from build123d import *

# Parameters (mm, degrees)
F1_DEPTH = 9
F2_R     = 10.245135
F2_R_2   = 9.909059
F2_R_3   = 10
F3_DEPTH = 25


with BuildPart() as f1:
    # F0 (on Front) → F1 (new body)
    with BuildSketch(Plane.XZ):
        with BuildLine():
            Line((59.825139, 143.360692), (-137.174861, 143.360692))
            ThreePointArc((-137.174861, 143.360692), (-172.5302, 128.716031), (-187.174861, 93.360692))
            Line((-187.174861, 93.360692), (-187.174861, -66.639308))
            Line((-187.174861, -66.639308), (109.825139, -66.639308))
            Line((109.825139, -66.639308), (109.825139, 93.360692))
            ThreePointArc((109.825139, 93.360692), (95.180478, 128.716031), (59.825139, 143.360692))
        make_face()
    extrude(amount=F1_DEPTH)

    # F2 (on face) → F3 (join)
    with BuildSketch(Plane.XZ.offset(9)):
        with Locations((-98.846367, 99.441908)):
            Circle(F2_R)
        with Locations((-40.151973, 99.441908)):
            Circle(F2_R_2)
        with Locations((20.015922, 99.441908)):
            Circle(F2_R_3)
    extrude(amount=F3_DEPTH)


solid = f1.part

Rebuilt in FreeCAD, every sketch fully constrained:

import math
import FreeCAD as App
import Part
import Sketcher
from FreeCAD import Vector
Q = App.Units.Quantity

doc = App.newDocument("Part")
body = doc.addObject("PartDesign::Body", "Body")

# Sketch on XZ plane
sketch1 = body.newObject("Sketcher::SketchObject", "Sketch")
sketch1.AttachmentSupport = (doc.getObject("XZ_Plane"), [""])
sketch1.MapMode = "FlatFace"
sketch1.addGeometry([
    Part.LineSegment(Vector(59.825139, 143.360692, 0), Vector(-137.174861, 143.360692, 0)),  # 0
    Part.ArcOfCircle(Part.Circle(Vector(-137.174861, 93.360692, 0), Vector(0, 0, 1), 50), math.radians(90), math.radians(180)),  # 1
    Part.LineSegment(Vector(-187.174861, 93.360692, 0), Vector(-187.174861, -66.639308, 0)),  # 2
    Part.LineSegment(Vector(-187.174861, -66.639308, 0), Vector(109.825139, -66.639308, 0)),  # 3
    Part.LineSegment(Vector(109.825139, -66.639308, 0), Vector(109.825139, 93.360692, 0)),  # 4
    Part.ArcOfCircle(Part.Circle(Vector(59.825139, 93.360692, 0), Vector(0, 0, 1), 50), math.radians(0), math.radians(90)),  # 5
], False)
sketch1.addConstraint([
    Sketcher.Constraint("Tangent", 0, 2, 1, 1),
    Sketcher.Constraint("Tangent", 1, 2, 2, 1),
    Sketcher.Constraint("Coincident", 2, 2, 3, 1),
    Sketcher.Constraint("Coincident", 3, 2, 4, 1),
    Sketcher.Constraint("Tangent", 4, 2, 5, 1),
    Sketcher.Constraint("Tangent", 5, 2, 0, 1),
    Sketcher.Constraint("Horizontal", 0),
    Sketcher.Constraint("Vertical", 2),
    Sketcher.Constraint("Horizontal", 3),
    Sketcher.Constraint("Vertical", 4),
    Sketcher.Constraint("Equal", 1, 5),
    Sketcher.Constraint("Radius", 1, Q("50 mm")),
    Sketcher.Constraint("DistanceX", 0, 2, 0, 1, Q("197 mm")),
    Sketcher.Constraint("DistanceY", 2, 2, 2, 1, Q("160 mm")),
    Sketcher.Constraint("DistanceX", 1, 3, -1, 1, Q("137.174861 mm")),
    Sketcher.Constraint("DistanceY", -1, 1, 1, 3, Q("93.360692 mm")),
])
pad1 = body.newObject("PartDesign::Pad", "Pad")
pad1.Profile = sketch1
pad1.Length = 9

# Sketch on XZ plane
sketch2 = body.newObject("Sketcher::SketchObject", "Sketch001")
sketch2.AttachmentSupport = (doc.getObject("XZ_Plane"), [""])
sketch2.MapMode = "FlatFace"
sketch2.AttachmentOffset = App.Placement(Vector(0, 0, 9), App.Rotation())
sketch2.addGeometry([
    Part.Circle(Vector(-98.846367, 99.441908, 0), Vector(0, 0, 1), 10.245135),
    Part.Circle(Vector(-40.151973, 99.441908, 0), Vector(0, 0, 1), 9.909059),
    Part.Circle(Vector(20.015922, 99.441908, 0), Vector(0, 0, 1), 10),
], False)
sketch2.addConstraint([
    Sketcher.Constraint("Horizontal", 0, 3, 1, 3),
    Sketcher.Constraint("Horizontal", 1, 3, 2, 3),
    Sketcher.Constraint("Diameter", 2, Q("20 mm")),
    Sketcher.Constraint("Diameter", 0, Q("20.49027 mm")),
    Sketcher.Constraint("Diameter", 1, Q("19.818118 mm")),
    Sketcher.Constraint("DistanceY", -1, 1, 0, 3, Q("99.441908 mm")),
    Sketcher.Constraint("DistanceX", -1, 1, 2, 3, Q("20.015922 mm")),
    Sketcher.Constraint("DistanceX", 0, 3, 2, 3, Q("118.862289 mm")),
    Sketcher.Constraint("DistanceX", 1, 3, -1, 1, Q("40.151973 mm")),
])
pad2 = body.newObject("PartDesign::Pad", "Pad001")
pad2.Profile = sketch2
pad2.Length = 25

doc.recompute()
